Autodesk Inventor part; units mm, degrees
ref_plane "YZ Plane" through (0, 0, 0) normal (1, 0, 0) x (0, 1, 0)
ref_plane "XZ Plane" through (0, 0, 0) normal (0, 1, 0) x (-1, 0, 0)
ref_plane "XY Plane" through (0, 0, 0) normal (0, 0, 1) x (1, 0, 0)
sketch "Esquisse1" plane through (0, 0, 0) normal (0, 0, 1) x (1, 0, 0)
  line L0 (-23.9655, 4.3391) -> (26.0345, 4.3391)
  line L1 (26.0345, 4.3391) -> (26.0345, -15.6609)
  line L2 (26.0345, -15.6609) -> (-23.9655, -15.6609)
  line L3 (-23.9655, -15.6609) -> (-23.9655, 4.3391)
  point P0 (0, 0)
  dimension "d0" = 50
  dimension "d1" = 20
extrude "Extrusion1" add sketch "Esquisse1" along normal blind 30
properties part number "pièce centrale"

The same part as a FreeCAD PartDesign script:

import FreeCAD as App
import Part
import Sketcher

doc = App.newDocument("Part")
body = doc.addObject("PartDesign::Body", "Body")

sketch1 = doc.addObject("Sketcher::SketchObject", "Sketch")
body.addObject(sketch1)
sketch1.AttachmentSupport = (doc.XY_Plane, [""])
sketch1.MapMode = "FlatFace"
sketch1.addGeometry(Part.LineSegment(App.Vector(26, 4, 0), App.Vector(-24, 4, 0)), False)
sketch1.addGeometry(Part.LineSegment(App.Vector(-24, 4, 0), App.Vector(-24, -16, 0)), False)
sketch1.addGeometry(Part.LineSegment(App.Vector(-24, -16, 0), App.Vector(26, -16, 0)), False)
sketch1.addGeometry(Part.LineSegment(App.Vector(26, -16, 0), App.Vector(26, 4, 0)), False)
sketch1.addConstraint(Sketcher.Constraint("Coincident", 0, 2, 1, 1))
sketch1.addConstraint(Sketcher.Constraint("Coincident", 1, 2, 2, 1))
sketch1.addConstraint(Sketcher.Constraint("Coincident", 2, 2, 3, 1))
sketch1.addConstraint(Sketcher.Constraint("Coincident", 3, 2, 0, 1))
sketch1.addConstraint(Sketcher.Constraint("Horizontal", 0))
sketch1.addConstraint(Sketcher.Constraint("Vertical", 1))
sketch1.addConstraint(Sketcher.Constraint("Horizontal", 2))
sketch1.addConstraint(Sketcher.Constraint("Vertical", 3))
sketch1.addConstraint(Sketcher.Constraint("DistanceX", 0, 2, 0, 1, 50.0))
sketch1.addConstraint(Sketcher.Constraint("DistanceY", 1, 2, 1, 1, 20.0))
sketch1.addConstraint(Sketcher.Constraint("DistanceY", -1, 1, 0, 2, 4.339))
sketch1.addConstraint(Sketcher.Constraint("DistanceX", 0, 2, -1, 1, 23.9655))
pad1 = doc.addObject("PartDesign::Pad", "Pad")
body.addObject(pad1)
pad1.Profile = sketch1
pad1.Length = 30

doc.recompute()
